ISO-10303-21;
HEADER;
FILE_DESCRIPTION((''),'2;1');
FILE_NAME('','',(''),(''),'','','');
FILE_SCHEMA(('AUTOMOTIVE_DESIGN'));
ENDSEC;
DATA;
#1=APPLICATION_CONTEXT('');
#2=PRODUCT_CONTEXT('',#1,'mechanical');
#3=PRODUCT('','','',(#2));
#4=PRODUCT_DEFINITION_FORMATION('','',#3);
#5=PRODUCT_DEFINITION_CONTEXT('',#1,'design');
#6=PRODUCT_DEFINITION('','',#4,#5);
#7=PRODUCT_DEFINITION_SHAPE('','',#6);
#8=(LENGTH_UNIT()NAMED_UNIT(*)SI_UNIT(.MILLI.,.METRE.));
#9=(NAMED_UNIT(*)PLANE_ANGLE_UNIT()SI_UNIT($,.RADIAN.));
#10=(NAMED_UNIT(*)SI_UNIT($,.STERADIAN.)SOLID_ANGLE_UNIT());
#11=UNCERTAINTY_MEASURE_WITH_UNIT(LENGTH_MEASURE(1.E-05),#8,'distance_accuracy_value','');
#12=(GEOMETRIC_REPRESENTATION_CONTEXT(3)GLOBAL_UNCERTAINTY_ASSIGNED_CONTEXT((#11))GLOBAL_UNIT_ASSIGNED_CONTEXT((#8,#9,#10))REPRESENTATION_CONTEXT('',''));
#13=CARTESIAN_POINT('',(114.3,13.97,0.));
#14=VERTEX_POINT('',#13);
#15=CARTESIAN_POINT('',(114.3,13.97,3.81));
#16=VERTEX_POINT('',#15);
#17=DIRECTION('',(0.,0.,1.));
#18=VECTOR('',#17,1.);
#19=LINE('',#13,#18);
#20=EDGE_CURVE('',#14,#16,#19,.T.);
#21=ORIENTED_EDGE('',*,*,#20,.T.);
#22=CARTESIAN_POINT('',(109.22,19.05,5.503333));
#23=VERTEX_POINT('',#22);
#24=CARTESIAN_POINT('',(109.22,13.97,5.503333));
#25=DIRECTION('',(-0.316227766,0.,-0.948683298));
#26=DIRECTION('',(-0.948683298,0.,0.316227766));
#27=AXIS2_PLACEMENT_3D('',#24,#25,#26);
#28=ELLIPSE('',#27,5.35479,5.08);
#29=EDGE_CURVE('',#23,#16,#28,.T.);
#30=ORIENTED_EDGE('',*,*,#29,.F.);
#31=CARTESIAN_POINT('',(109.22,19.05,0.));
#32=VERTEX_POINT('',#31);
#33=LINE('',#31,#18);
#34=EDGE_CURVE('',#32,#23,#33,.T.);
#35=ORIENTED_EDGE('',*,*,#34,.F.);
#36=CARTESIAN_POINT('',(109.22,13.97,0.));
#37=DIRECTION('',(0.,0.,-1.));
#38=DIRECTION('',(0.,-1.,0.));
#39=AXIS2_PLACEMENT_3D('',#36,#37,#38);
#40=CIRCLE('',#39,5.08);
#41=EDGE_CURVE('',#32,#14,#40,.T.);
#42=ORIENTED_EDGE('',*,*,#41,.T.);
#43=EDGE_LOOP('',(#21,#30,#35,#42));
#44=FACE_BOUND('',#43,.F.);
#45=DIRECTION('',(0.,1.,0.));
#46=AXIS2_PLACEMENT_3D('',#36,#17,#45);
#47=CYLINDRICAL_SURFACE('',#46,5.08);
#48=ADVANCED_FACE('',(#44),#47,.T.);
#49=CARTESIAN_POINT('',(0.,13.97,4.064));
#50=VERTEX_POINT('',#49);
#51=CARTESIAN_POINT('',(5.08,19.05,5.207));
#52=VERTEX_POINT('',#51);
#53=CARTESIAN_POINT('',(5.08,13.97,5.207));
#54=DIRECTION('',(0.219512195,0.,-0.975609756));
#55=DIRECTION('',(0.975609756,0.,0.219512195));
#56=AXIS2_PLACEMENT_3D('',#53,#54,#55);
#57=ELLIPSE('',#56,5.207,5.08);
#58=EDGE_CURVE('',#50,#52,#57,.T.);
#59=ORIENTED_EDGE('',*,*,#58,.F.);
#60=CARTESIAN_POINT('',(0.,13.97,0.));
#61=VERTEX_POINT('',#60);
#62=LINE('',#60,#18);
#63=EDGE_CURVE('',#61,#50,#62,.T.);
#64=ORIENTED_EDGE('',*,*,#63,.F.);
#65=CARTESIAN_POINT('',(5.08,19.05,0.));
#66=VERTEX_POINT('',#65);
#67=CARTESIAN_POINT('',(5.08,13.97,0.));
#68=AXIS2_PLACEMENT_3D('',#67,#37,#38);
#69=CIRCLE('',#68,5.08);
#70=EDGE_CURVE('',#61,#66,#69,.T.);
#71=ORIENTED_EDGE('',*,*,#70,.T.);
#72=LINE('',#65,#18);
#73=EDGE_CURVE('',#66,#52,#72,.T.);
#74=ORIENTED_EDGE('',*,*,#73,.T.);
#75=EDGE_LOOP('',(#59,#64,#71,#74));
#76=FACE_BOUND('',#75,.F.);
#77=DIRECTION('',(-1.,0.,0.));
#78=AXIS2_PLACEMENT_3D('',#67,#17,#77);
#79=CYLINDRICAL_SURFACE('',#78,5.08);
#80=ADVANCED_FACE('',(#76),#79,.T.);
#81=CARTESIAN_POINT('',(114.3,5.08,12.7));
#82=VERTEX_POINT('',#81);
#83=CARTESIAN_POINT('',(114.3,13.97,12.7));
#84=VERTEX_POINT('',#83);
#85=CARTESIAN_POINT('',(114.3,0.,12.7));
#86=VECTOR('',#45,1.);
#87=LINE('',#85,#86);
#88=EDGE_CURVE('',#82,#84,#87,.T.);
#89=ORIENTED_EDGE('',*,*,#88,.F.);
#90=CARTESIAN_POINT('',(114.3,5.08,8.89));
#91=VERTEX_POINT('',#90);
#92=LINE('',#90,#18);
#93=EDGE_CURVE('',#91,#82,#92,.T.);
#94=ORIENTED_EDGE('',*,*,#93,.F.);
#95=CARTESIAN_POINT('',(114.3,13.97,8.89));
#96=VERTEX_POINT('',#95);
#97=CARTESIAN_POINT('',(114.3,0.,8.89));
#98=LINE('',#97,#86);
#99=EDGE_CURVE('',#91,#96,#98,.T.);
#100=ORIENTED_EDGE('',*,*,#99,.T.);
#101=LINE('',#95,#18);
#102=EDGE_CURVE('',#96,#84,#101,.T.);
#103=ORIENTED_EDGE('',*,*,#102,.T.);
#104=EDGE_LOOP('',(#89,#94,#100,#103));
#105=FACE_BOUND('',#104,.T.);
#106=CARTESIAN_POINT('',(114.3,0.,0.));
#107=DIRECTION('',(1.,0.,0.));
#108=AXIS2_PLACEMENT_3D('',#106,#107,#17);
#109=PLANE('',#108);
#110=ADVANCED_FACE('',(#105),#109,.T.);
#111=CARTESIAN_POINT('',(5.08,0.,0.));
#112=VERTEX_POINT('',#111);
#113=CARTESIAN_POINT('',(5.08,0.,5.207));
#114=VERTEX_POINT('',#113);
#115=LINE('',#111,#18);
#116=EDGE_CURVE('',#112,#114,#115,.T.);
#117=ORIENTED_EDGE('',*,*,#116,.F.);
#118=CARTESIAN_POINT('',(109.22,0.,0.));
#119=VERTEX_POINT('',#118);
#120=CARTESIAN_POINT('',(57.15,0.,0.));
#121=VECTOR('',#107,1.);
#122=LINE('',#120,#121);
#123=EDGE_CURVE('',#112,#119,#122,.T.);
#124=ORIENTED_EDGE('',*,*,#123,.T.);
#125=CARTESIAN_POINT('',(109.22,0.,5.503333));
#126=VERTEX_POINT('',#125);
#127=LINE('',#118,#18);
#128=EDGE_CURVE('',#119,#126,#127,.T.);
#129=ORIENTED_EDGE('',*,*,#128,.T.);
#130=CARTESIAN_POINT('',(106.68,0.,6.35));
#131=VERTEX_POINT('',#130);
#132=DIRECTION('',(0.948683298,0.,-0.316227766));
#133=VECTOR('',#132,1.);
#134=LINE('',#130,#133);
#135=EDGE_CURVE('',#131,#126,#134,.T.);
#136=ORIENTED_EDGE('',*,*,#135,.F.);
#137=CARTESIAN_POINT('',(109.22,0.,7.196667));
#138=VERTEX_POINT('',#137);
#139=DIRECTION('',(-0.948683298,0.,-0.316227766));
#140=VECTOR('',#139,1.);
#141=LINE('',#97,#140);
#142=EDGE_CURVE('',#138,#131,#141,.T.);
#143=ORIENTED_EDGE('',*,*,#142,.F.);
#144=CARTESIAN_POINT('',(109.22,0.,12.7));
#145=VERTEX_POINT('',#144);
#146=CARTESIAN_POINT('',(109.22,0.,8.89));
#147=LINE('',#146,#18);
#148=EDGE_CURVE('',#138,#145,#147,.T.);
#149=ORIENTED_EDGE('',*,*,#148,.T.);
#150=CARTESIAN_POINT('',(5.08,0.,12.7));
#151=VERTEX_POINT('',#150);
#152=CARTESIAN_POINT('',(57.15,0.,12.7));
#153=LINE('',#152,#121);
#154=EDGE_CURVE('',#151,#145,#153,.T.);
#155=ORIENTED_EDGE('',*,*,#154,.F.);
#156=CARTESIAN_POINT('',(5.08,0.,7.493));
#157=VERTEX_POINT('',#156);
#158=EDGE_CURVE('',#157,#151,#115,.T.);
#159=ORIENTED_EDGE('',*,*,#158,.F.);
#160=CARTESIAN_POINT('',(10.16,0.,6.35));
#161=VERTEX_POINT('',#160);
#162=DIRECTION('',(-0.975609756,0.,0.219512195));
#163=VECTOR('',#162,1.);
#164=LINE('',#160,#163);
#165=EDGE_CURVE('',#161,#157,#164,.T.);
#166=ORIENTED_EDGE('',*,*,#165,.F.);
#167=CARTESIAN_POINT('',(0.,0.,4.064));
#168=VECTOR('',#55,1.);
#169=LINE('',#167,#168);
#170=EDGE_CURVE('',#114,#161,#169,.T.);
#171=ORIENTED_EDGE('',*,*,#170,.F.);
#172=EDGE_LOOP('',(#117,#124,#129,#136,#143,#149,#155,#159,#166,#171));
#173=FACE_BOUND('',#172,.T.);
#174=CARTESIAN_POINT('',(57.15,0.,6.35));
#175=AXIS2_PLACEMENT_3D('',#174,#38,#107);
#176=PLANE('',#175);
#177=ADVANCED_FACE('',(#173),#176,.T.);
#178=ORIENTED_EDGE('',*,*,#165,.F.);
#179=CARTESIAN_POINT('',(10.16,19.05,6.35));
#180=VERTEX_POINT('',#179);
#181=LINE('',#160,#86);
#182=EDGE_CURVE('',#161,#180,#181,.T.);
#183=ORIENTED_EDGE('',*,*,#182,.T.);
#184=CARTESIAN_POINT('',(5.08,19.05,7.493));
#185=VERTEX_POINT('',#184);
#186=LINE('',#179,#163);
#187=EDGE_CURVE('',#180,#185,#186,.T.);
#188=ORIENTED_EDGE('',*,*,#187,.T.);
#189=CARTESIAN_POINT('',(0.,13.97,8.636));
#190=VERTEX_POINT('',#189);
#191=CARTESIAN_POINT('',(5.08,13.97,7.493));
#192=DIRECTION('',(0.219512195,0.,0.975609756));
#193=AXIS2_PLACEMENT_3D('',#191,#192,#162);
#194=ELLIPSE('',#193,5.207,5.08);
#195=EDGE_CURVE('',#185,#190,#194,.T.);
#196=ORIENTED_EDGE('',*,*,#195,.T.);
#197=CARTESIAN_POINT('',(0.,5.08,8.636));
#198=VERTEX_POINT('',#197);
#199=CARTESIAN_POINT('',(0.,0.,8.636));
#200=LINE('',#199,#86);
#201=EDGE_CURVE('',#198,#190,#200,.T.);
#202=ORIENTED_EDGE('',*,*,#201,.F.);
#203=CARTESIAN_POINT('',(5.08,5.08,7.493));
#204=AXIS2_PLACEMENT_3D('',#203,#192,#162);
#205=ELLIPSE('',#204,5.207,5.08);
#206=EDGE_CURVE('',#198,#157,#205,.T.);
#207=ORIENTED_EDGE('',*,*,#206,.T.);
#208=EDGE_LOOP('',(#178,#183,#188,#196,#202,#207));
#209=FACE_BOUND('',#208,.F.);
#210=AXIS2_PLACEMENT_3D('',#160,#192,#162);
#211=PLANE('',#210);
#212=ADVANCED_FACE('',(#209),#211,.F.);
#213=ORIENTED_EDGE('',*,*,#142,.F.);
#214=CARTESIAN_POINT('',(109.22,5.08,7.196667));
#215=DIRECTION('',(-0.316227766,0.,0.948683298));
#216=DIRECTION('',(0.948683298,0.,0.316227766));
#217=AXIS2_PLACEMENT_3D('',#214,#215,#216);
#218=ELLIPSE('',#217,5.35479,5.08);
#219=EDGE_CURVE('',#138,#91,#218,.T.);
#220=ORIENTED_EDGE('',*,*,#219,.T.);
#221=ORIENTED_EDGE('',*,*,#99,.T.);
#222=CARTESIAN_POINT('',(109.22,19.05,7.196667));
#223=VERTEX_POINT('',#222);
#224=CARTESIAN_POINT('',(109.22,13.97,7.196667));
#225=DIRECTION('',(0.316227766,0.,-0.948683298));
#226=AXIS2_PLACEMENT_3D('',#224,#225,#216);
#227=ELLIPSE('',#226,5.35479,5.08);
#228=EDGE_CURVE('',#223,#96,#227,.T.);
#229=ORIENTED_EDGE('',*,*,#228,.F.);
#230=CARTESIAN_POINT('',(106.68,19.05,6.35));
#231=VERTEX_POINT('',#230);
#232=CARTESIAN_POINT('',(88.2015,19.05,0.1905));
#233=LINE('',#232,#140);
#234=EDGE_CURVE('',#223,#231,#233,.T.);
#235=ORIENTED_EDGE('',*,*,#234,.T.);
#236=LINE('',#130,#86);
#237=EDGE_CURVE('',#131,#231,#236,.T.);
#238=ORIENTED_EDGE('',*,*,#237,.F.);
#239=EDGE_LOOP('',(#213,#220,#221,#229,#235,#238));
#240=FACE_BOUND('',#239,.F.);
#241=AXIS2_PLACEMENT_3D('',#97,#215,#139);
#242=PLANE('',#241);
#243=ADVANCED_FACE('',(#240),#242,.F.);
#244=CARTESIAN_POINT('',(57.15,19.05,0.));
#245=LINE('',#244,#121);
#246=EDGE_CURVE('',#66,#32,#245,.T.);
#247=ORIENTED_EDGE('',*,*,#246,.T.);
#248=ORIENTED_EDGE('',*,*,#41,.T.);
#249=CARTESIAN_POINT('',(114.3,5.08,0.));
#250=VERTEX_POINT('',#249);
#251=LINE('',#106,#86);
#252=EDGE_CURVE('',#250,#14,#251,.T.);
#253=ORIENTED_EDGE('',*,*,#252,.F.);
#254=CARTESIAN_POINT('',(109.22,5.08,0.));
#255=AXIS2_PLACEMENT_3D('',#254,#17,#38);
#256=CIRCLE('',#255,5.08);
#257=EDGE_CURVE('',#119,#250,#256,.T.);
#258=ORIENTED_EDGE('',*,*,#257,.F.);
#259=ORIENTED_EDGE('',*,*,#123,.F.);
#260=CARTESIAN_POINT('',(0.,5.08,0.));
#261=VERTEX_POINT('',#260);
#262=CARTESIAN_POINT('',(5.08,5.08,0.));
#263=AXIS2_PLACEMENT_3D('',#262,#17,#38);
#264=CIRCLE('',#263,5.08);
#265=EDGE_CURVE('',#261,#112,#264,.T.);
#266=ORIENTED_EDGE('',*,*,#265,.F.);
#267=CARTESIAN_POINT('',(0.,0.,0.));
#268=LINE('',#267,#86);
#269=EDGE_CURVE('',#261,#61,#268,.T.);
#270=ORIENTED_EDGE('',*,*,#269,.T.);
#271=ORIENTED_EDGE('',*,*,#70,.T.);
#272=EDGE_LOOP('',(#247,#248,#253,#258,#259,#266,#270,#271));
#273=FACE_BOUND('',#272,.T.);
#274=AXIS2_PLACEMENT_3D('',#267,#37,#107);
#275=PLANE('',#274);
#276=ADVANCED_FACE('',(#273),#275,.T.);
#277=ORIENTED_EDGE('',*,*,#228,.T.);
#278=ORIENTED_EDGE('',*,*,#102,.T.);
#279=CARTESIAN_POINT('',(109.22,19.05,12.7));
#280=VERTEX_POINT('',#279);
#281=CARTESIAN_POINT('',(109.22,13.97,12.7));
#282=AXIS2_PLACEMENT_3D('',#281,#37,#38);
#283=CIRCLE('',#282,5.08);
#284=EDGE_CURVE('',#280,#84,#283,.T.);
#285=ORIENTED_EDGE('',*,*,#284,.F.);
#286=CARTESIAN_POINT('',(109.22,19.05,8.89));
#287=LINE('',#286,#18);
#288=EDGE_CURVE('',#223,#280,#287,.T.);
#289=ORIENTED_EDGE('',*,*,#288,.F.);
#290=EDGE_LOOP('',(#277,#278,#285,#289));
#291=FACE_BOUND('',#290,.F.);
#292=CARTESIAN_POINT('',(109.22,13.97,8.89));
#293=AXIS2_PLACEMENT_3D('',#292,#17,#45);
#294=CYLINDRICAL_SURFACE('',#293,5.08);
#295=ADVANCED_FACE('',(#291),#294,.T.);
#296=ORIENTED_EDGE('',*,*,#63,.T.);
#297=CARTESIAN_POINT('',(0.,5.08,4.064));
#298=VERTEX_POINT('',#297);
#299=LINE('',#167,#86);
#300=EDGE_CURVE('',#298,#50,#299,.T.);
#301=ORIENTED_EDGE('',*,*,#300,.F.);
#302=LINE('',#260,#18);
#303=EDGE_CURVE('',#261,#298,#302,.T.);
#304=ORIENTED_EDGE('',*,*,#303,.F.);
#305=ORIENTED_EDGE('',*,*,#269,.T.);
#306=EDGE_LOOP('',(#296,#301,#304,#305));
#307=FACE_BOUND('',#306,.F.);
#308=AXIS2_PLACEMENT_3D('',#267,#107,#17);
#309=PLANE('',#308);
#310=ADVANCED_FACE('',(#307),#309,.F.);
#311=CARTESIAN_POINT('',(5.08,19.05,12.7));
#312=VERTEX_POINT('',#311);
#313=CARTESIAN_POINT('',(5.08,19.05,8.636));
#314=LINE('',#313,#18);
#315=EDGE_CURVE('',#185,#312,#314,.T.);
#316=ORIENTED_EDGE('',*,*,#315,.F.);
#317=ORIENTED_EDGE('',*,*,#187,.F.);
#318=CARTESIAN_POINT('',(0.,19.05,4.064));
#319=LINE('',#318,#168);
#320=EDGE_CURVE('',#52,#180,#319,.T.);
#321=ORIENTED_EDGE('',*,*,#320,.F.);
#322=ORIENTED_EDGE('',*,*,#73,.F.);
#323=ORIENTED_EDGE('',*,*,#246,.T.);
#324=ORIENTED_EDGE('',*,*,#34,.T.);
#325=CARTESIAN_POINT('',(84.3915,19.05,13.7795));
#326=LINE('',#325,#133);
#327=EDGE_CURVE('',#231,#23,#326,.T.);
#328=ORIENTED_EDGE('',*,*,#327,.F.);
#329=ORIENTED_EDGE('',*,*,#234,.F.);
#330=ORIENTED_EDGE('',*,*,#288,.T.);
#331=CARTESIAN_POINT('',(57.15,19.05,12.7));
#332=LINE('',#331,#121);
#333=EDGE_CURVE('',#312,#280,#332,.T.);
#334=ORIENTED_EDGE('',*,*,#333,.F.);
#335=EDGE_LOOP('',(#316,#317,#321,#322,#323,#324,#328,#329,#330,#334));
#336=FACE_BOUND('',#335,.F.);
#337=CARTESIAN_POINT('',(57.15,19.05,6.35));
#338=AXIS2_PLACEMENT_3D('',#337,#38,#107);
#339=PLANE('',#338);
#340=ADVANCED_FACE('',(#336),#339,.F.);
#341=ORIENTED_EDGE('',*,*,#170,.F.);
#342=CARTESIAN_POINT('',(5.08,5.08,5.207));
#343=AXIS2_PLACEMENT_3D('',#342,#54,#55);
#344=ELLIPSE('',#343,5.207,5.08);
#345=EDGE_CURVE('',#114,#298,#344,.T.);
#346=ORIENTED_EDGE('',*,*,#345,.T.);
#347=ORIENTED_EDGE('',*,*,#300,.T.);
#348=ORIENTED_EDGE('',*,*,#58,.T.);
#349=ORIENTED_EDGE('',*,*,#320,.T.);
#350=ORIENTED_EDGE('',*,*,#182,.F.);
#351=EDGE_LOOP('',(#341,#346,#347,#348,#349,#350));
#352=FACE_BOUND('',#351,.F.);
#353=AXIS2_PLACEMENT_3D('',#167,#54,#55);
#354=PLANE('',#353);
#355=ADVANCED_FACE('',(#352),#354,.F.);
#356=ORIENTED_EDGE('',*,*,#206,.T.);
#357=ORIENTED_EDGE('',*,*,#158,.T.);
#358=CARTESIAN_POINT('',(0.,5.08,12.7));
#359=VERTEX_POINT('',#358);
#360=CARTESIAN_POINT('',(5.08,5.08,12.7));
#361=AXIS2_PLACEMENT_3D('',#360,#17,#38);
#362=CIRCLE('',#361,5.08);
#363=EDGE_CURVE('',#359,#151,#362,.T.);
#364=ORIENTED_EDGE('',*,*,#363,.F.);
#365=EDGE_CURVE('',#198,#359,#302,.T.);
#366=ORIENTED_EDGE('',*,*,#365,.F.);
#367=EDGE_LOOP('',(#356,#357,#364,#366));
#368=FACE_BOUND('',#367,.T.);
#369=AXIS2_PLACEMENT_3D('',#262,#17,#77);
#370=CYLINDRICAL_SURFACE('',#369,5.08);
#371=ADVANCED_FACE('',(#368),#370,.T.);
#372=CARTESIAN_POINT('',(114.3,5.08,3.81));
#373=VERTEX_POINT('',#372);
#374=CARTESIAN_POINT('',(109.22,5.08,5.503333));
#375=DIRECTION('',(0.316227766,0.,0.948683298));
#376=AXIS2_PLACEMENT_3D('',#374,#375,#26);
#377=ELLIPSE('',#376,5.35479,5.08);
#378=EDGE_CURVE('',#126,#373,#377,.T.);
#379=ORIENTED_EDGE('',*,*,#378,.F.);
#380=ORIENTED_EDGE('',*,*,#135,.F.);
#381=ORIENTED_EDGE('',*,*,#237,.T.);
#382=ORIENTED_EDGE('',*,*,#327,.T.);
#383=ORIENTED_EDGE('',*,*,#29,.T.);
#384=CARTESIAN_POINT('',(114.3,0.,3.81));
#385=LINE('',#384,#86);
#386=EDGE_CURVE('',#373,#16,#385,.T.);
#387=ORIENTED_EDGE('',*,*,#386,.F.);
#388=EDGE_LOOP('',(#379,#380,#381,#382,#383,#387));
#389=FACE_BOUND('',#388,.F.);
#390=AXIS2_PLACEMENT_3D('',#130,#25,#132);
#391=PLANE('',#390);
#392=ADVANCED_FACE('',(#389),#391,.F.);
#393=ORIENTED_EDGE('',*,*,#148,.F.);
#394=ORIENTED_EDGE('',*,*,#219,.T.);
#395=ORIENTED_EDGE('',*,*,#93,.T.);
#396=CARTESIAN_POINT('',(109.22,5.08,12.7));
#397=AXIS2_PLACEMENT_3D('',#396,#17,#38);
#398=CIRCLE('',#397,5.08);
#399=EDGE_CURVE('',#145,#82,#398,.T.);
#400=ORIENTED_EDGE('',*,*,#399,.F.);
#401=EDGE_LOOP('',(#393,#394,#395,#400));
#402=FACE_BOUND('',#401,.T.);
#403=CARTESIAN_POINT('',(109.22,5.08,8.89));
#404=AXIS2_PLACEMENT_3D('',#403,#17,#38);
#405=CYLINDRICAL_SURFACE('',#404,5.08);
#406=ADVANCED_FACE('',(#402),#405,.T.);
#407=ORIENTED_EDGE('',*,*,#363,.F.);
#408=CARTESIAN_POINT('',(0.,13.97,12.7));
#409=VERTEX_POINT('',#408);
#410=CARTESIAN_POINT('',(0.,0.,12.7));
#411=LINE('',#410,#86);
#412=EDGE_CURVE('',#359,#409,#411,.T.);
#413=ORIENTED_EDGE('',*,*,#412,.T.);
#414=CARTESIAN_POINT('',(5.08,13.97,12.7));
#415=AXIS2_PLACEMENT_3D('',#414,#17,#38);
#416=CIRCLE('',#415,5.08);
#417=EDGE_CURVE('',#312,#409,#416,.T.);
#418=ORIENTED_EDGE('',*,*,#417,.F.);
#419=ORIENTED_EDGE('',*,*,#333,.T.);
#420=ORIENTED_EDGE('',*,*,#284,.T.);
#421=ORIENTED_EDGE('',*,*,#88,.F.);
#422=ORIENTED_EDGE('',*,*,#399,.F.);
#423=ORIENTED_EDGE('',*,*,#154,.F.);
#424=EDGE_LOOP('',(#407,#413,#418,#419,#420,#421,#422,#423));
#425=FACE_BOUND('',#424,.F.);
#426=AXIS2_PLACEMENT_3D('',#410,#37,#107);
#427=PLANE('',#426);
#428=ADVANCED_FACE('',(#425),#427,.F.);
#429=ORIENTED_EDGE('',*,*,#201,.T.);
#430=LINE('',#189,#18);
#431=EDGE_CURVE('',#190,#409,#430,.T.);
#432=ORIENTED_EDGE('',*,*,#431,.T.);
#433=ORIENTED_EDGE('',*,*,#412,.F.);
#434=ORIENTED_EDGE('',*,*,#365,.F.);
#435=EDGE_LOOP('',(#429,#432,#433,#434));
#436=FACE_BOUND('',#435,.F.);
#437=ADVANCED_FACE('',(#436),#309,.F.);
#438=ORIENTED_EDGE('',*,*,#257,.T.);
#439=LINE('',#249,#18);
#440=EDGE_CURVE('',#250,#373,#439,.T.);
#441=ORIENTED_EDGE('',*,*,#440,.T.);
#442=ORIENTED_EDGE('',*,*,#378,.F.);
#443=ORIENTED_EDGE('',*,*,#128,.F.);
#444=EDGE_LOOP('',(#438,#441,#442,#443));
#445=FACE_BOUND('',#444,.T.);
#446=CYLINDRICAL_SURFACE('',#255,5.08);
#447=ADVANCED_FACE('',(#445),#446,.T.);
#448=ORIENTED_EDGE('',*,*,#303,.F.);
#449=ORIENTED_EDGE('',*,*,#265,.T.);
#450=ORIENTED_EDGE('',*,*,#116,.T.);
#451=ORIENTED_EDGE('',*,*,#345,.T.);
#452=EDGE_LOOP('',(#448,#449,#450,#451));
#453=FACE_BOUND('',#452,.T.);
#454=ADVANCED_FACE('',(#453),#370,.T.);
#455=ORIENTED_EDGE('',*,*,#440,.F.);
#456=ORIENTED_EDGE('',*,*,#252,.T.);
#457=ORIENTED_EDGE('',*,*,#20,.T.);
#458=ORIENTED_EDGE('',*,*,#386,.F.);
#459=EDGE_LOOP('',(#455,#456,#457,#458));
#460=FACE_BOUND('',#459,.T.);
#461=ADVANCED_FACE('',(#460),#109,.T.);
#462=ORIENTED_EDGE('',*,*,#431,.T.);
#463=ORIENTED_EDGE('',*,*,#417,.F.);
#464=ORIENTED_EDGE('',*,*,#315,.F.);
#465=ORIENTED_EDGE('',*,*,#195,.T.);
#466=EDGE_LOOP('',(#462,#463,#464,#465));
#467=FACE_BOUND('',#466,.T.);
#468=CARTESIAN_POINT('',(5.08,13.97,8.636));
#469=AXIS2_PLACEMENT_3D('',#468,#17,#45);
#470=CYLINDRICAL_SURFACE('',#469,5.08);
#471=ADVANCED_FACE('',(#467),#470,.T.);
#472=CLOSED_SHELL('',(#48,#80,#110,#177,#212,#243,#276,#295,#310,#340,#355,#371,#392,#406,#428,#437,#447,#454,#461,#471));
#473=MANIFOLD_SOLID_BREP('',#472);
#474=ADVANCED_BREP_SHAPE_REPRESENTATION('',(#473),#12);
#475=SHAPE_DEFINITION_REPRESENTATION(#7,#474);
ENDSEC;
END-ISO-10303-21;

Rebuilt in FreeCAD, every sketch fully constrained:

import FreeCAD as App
import Part
import Sketcher

V = App.Vector
Q = App.Units.Quantity


def edges_at(feature, points):
    """Names of the edges that pass closest to the given points."""
    edges = feature.Shape.Edges
    near = lambda p: min(range(len(edges)), key=lambda i: edges[i].distToShape(Part.Vertex(*p))[0])
    return sorted({f"Edge{near(p) + 1}" for p in points})


def add_polygon(sketch, points):
    """Adds a closed chain of lines whose ends are joined by coincident constraints."""
    first, n = sketch.GeometryCount, len(points)
    for a, b in zip(points, points[1:] + points[:1]):
        sketch.addGeometry(Part.LineSegment(App.Vector(*a, 0), App.Vector(*b, 0)), False)
    for i in range(n):
        sketch.addConstraint(Sketcher.Constraint("Coincident", first + i, 2, first + (i + 1) % n, 1))

doc = App.newDocument("Part")
body = doc.addObject("PartDesign::Body", "Body")

sketch1 = body.newObject("Sketcher::SketchObject", "Sketch")
sketch1.AttachmentSupport = (doc.getObject("XZ_Plane"), [""])
sketch1.MapMode = "FlatFace"
add_polygon(sketch1, [(0, 12.7), (0, 0), (114.3, 0), (114.3, 12.7)])
sketch1.addConstraint(Sketcher.Constraint("Vertical", 0))
sketch1.addConstraint(Sketcher.Constraint("Horizontal", 1))
sketch1.addConstraint(Sketcher.Constraint("Vertical", 2))
sketch1.addConstraint(Sketcher.Constraint("Horizontal", 3))
sketch1.addConstraint(Sketcher.Constraint("Coincident", 0, 2, -1, 1))
sketch1.addConstraint(Sketcher.Constraint("DistanceX", 1, 1, 1, 2, Q("4.5 in")))
sketch1.addConstraint(Sketcher.Constraint("DistanceY", 0, 2, 0, 1, Q("0.5 in")))
pad1 = body.newObject("PartDesign::Pad", "Pad")
pad1.Profile = sketch1
pad1.Length = Q("0.75 in")
pad1.Reversed = True
doc.recompute()

fillet = body.newObject("PartDesign::Fillet", "Fillet")
fillet.Base = (pad1, edges_at(pad1, [(0, 0, 6.35)]))
fillet.Radius = Q("0.2 in")

sketch2 = body.newObject("Sketcher::SketchObject", "Sketch001")
sketch2.AttachmentSupport = (doc.getObject("XZ_Plane"), [""])
sketch2.MapMode = "FlatFace"
add_polygon(sketch2, [(10.16, 6.35), (0, 8.636), (0, 4.064)])
sketch2.addConstraint(Sketcher.Constraint("Vertical", 1))
sketch2.addConstraint(Sketcher.Constraint("PointOnObject", 0, 2, -2))
sketch2.addConstraint(Sketcher.Constraint("Equal", 0, 2))
sketch2.addConstraint(Sketcher.Constraint("DistanceY", 1, 2, 1, 1, Q("0.18 in")))
sketch2.addConstraint(Sketcher.Constraint("DistanceX", -1, 1, 2, 2, Q("0.4 in")))
sketch2.addConstraint(Sketcher.Constraint("DistanceY", -1, 1, 0, 2, Q("0.34 in")))
pocket1 = body.newObject("PartDesign::Pocket", "Pocket")
pocket1.Profile = sketch2
pocket1.Length = Q("0.75 in")
doc.recompute()

fillet2 = body.newObject("PartDesign::Fillet", "Fillet001")
fillet2.Base = (pocket1, edges_at(pocket1, [(0, 19.05, 10.668), (0, 19.05, 2.032)]))
fillet2.Radius = Q("0.2 in")

sketch3 = body.newObject("Sketcher::SketchObject", "Sketch002")
sketch3.AttachmentSupport = (doc.getObject("XZ_Plane"), [""])
sketch3.MapMode = "FlatFace"
add_polygon(sketch3, [(114.3, 3.81), (114.3, 8.89), (106.68, 6.35)])
sketch3.addConstraint(Sketcher.Constraint("Vertical", 0))
sketch3.addConstraint(Sketcher.Constraint("Equal", 1, 2))
sketch3.addConstraint(Sketcher.Constraint("DistanceY", 0, 1, 0, 2, Q("0.2 in")))
sketch3.addConstraint(Sketcher.Constraint("DistanceX", -1, 1, 0, 2, Q("4.5 in")))
sketch3.addConstraint(Sketcher.Constraint("DistanceX", -1, 1, 1, 2, Q("4.2 in")))
sketch3.addConstraint(Sketcher.Constraint("DistanceY", -1, 1, 0, 2, Q("0.35 in")))
pocket2 = body.newObject("PartDesign::Pocket", "Pocket001")
pocket2.Profile = sketch3
pocket2.Length = Q("1 in")
doc.recompute()

fillet3 = body.newObject("PartDesign::Fillet", "Fillet002")
fillet3.Base = (pocket2, edges_at(pocket2, [
    (114.3, 0, 10.795),
    (114.3, 0, 1.905),
    (114.3, 19.05, 10.795),
    (114.3, 19.05, 1.905),
]))
fillet3.Radius = Q("0.2 in")

doc.recompute()
